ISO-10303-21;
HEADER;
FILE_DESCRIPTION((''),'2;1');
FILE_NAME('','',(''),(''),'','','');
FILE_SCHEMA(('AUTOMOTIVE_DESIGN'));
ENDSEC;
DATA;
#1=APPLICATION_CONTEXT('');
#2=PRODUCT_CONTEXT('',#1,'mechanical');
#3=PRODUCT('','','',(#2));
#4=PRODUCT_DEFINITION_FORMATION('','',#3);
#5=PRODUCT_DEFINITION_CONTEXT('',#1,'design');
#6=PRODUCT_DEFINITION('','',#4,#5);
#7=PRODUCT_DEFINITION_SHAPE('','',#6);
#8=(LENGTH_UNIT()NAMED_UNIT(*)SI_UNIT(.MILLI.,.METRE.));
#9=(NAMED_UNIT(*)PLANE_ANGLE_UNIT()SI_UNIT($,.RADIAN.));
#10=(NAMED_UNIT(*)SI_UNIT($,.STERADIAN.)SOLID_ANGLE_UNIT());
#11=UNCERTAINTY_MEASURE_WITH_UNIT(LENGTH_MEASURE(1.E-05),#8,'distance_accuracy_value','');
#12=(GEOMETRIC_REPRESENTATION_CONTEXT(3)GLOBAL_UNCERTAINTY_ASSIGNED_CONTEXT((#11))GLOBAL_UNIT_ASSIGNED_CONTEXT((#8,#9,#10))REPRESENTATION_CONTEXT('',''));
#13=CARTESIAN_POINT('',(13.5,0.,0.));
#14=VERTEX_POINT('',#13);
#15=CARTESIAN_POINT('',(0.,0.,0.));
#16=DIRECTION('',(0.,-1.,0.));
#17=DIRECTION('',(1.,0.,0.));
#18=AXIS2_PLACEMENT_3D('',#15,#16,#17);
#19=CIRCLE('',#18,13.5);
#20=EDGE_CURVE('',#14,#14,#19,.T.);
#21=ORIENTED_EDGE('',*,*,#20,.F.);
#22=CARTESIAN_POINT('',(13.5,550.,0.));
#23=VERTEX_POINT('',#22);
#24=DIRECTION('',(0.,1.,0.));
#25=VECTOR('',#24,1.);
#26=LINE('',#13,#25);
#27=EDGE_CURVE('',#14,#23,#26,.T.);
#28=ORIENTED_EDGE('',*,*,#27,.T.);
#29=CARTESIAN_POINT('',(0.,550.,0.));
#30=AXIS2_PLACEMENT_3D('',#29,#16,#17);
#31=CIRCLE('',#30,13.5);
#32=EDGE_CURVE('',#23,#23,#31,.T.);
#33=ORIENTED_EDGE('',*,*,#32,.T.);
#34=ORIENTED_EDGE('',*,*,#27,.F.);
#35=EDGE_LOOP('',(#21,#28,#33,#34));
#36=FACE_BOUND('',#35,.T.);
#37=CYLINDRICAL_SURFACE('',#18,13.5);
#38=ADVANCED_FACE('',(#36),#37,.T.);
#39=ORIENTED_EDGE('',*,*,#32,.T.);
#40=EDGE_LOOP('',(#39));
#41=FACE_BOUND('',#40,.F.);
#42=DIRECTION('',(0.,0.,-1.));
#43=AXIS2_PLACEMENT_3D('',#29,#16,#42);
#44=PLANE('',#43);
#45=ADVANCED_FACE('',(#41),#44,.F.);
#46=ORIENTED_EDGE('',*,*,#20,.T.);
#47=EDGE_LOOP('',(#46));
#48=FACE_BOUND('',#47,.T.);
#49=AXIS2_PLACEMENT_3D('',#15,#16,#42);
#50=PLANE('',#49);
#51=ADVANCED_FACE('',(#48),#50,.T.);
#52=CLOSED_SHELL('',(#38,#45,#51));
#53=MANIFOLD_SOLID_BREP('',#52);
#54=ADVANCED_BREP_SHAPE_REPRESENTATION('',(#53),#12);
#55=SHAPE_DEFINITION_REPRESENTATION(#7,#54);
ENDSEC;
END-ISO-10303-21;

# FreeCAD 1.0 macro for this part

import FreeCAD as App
import Part
import Sketcher
from FreeCAD import Vector
Q = App.Units.Quantity

doc = App.newDocument("Part")
body = doc.addObject("PartDesign::Body", "Body")

# Sketch on XZ plane
sketch1 = body.newObject("Sketcher::SketchObject", "Sketch")
sketch1.AttachmentSupport = (doc.getObject("XZ_Plane"), [""])
sketch1.MapMode = "FlatFace"
sketch1.addGeometry(Part.Circle(Vector(0, 0, 0), Vector(0, 0, 1), 14), False)
sketch1.addConstraint(Sketcher.Constraint("Coincident", 0, 3, -1, 1))
sketch1.addConstraint(Sketcher.Constraint("Diameter", 0, Q("27 mm")))
pad1 = body.newObject("PartDesign::Pad", "Pad")
pad1.Profile = sketch1
pad1.Length = 550
pad1.Reversed = True

doc.recompute()
